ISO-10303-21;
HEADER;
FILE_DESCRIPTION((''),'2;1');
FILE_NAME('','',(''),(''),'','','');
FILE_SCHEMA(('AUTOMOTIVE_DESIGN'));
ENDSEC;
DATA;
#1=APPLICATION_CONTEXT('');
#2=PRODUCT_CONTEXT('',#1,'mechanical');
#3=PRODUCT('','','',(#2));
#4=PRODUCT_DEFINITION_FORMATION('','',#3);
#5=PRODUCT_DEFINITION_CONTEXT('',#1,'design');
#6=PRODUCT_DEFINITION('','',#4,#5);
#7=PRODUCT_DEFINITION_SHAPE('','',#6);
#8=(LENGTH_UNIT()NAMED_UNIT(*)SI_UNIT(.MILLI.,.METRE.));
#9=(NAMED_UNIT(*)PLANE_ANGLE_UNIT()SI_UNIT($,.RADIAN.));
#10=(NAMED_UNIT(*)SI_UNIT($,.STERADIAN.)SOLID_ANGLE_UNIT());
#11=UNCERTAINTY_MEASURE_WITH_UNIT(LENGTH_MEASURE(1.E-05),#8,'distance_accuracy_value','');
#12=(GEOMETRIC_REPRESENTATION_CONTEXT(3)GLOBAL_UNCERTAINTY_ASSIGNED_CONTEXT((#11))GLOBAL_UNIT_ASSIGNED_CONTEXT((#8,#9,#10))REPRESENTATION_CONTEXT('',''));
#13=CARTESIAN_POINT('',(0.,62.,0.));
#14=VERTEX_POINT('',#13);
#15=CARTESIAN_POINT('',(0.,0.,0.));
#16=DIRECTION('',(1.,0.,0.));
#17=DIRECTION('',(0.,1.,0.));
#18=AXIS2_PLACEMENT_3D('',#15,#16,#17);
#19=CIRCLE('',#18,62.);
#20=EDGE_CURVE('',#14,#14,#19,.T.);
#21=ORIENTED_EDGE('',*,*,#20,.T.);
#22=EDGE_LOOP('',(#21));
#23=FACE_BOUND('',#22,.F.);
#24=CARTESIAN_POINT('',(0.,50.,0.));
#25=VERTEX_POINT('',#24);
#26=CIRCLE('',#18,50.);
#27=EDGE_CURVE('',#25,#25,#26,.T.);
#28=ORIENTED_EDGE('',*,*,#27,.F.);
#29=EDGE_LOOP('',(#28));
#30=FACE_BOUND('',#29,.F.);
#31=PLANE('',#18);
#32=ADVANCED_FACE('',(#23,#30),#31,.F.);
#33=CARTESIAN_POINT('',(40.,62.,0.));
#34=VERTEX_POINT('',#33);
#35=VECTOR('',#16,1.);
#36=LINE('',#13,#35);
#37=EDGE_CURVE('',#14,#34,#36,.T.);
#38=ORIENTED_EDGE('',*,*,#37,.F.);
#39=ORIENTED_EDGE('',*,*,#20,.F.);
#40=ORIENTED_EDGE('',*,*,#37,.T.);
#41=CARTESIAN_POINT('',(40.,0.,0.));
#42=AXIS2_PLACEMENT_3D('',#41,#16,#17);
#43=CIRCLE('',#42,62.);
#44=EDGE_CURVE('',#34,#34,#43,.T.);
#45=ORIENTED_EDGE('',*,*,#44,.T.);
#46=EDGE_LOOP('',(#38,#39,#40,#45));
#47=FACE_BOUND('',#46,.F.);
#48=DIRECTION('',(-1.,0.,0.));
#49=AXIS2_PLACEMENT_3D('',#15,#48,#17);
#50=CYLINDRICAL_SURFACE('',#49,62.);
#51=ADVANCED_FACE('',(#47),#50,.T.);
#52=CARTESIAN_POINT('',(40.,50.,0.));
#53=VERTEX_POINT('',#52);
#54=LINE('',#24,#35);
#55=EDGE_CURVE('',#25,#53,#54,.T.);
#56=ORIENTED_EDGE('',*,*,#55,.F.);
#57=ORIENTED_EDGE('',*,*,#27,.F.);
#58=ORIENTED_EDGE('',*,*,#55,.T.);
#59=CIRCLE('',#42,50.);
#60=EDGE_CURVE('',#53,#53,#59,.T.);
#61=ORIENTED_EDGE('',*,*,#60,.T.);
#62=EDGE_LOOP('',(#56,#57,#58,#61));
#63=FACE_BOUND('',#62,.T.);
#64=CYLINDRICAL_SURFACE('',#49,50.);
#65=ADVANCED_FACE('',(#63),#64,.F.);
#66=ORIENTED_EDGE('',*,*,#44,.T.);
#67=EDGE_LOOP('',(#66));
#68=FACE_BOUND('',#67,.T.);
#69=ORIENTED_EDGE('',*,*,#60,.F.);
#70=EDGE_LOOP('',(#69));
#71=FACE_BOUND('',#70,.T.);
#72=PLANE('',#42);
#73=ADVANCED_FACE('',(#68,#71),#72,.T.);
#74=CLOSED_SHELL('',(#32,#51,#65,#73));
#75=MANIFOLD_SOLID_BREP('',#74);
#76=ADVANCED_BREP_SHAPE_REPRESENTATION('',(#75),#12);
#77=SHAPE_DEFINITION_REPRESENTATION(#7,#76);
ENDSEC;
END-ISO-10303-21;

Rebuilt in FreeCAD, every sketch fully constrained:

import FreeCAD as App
import Part
import Sketcher

V = App.Vector
Q = App.Units.Quantity

doc = App.newDocument("Part")
params = doc.addObject("Spreadsheet::Sheet", "Params")
for row, (alias, value) in enumerate([
    ("sketch1_diameter", "3.937 in"),
    ("pad1_length", "1.5748031 in"),
], start=1):
    params.set(f"A{row}", alias)
    params.set(f"B{row}", "=" + value)
    params.setAlias(f"B{row}", alias)

body = doc.addObject("PartDesign::Body", "Body")

# Sketch on YZ plane
sketch1 = doc.addObject("Sketcher::SketchObject", "Sketch")
body.addObject(sketch1)
sketch1.AttachmentSupport = (doc.YZ_Plane, [""])
sketch1.MapMode = "FlatFace"
sketch1.addGeometry(Part.Circle(V(0, 0, 0), V(0, 0, 1), 62), False)
sketch1.addGeometry(Part.Circle(V(0, 0, 0), V(0, 0, 1), 50), False)
sketch1.addConstraint(Sketcher.Constraint("Coincident", 0, 3, -1, 1))
sketch1.addConstraint(Sketcher.Constraint("Coincident", 1, 3, -1, 1))
sketch1.addConstraint(Sketcher.Constraint("Diameter", 1, Q("3.937 in")))
sketch1.addConstraint(Sketcher.Constraint("Diameter", 0, Q("4.8819 in")))
sketch1.setExpression("Constraints[2]", "Params.sketch1_diameter")
pad1 = doc.addObject("PartDesign::Pad", "Pad")
body.addObject(pad1)
pad1.Profile = sketch1
pad1.setExpression("Length", "Params.pad1_length")

doc.recompute()
